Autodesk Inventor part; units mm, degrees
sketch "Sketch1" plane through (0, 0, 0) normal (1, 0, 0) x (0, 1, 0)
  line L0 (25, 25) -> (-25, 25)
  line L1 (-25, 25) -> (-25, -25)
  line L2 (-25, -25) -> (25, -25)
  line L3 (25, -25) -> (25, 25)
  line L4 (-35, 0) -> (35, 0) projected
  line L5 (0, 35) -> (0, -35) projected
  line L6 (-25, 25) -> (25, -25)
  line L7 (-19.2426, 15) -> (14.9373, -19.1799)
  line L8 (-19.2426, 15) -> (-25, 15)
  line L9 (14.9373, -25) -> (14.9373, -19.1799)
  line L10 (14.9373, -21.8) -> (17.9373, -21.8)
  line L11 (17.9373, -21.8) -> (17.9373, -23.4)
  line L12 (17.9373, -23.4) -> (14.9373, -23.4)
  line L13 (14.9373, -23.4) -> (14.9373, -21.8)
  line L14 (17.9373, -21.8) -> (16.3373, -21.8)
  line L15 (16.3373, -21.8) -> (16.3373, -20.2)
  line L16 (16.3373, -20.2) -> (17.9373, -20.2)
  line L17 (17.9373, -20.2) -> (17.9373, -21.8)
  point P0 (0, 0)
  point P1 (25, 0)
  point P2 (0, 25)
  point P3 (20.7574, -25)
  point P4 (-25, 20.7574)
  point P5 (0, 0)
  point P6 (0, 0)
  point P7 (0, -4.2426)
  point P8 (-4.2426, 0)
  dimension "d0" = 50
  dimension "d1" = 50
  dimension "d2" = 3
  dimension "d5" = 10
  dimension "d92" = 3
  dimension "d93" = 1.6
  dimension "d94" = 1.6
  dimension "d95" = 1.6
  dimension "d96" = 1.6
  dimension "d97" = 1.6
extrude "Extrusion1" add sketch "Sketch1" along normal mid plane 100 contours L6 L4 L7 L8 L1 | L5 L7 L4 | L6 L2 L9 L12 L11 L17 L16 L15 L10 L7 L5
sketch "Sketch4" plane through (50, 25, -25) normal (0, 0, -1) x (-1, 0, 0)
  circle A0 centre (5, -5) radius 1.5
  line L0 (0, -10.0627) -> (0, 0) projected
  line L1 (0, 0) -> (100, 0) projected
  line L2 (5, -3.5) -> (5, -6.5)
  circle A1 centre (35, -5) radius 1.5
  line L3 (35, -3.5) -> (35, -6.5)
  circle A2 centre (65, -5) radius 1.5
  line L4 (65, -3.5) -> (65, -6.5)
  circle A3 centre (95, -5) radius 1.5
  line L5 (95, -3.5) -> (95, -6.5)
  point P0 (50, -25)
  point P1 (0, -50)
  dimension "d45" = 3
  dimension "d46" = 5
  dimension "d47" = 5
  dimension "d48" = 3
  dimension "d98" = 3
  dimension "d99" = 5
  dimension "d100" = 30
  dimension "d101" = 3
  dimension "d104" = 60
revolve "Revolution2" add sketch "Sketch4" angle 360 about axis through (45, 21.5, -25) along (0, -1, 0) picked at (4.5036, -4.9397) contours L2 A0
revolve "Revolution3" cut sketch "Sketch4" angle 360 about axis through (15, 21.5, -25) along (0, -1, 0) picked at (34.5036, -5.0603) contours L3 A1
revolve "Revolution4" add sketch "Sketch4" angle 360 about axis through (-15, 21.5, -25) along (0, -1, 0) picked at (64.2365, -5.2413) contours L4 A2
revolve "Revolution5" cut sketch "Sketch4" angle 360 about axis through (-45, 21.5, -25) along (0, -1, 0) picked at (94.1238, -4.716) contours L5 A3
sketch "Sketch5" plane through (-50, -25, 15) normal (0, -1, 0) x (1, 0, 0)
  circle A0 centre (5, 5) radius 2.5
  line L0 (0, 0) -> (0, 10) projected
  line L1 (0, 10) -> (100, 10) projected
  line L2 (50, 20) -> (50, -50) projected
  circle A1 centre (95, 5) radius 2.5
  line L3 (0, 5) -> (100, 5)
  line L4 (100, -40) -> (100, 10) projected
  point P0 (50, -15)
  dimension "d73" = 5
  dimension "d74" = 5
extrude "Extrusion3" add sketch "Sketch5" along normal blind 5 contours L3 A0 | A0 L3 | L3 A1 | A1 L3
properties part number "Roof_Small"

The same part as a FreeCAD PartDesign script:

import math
import FreeCAD as App
import Part
import Sketcher

V = App.Vector
Q = App.Units.Quantity


def add_polygon(sketch, points):
    """Adds a closed chain of lines whose ends are joined by coincident constraints."""
    first, n = sketch.GeometryCount, len(points)
    for a, b in zip(points, points[1:] + points[:1]):
        sketch.addGeometry(Part.LineSegment(App.Vector(*a, 0), App.Vector(*b, 0)), False)
    for i in range(n):
        sketch.addConstraint(Sketcher.Constraint("Coincident", first + i, 2, first + (i + 1) % n, 1))

doc = App.newDocument("Part")
body = doc.addObject("PartDesign::Body", "Body")

# Sketch on YZ plane
sketch1 = body.newObject("Sketcher::SketchObject", "Sketch")
sketch1.AttachmentSupport = (doc.getObject("YZ_Plane"), [""])
sketch1.MapMode = "FlatFace"
add_polygon(sketch1, [(-25, 25), (-25, 15), (-19.2, 15), (14.9, -19.2), (14.9, -21.8), (16.3, -21.8), (16.3, -20.2), (17.9, -20.2), (17.9, -23.4), (14.9, -23.4), (14.9, -25), (25, -25)])  # lines 0-11
sketch1.addConstraint(Sketcher.Constraint("Vertical", 0))
sketch1.addConstraint(Sketcher.Constraint("Horizontal", 1))
sketch1.addConstraint(Sketcher.Constraint("Vertical", 3))
sketch1.addConstraint(Sketcher.Constraint("Horizontal", 4))
sketch1.addConstraint(Sketcher.Constraint("Vertical", 5))
sketch1.addConstraint(Sketcher.Constraint("Horizontal", 6))
sketch1.addConstraint(Sketcher.Constraint("Vertical", 7))
sketch1.addConstraint(Sketcher.Constraint("Horizontal", 8))
sketch1.addConstraint(Sketcher.Constraint("Vertical", 9))
sketch1.addConstraint(Sketcher.Constraint("Horizontal", 10))
sketch1.addConstraint(Sketcher.Constraint("Symmetric", 10, 2, 11, 2, -1, 1))
sketch1.addConstraint(Sketcher.Constraint("Parallel", 2, 11))
sketch1.addConstraint(Sketcher.Constraint("Vertical", 3, 2, 8, 2))
sketch1.addConstraint(Sketcher.Constraint("Equal", 6, 5))
sketch1.addConstraint(Sketcher.Constraint("Equal", 5, 9))
sketch1.addConstraint(Sketcher.Constraint("DistanceX", 8, 2, 8, 1, Q("3 mm")))
sketch1.addConstraint(Sketcher.Constraint("DistanceY", 0, 2, 0, 1, Q("10 mm")))
sketch1.addConstraint(Sketcher.Constraint("DistanceX", 6, 1, 6, 2, Q("1.6 mm")))
sketch1.addConstraint(Sketcher.Constraint("DistanceY", 7, 2, 4, 2, Q("1.6 mm")))
sketch1.addConstraint(Sketcher.Constraint("Angle", 2, Q("-45 deg")))
sketch1.addConstraint(Sketcher.Constraint("DistanceX", 0, 2, -1, 1, Q("25 mm")))
sketch1.addConstraint(Sketcher.Constraint("DistanceY", 3, 2, 3, 1, Q("2.62 mm")))
sketch1.addConstraint(Sketcher.Constraint("DistanceX", 1, 1, 1, 2, Q("5.7574 mm")))
pad1 = body.newObject("PartDesign::Pad", "Pad")
pad1.Profile = sketch1
pad1.Length = 100
pad1.Midplane = True

# Sketch on XY plane
sketch2 = body.newObject("Sketcher::SketchObject", "Sketch001")
sketch2.AttachmentSupport = (doc.getObject("XY_Plane"), [""])
sketch2.MapMode = "FlatFace"
sketch2.AttachmentOffset = App.Placement(V(0, 0, -25), App.Rotation())
sketch2.addGeometry(Part.LineSegment(V(45, 18.5, 0), V(45, 21.5, 0)), False)
sketch2.addGeometry(Part.ArcOfCircle(Part.Circle(V(45, 20, 0), V(0, 0, 1), 1.5), math.radians(-90), math.radians(90)), False)
sketch2.addGeometry(Part.LineSegment(V(45, 21.5, 0), V(45, 18.5, 0)), True)  # axis
sketch2.addConstraint(Sketcher.Constraint("Coincident", 0, 1, 1, 1))
sketch2.addConstraint(Sketcher.Constraint("Coincident", 1, 2, 0, 2))
sketch2.addConstraint(Sketcher.Constraint("Vertical", 0))
sketch2.addConstraint(Sketcher.Constraint("Vertical", 2))
sketch2.addConstraint(Sketcher.Constraint("Coincident", 2, 1, 1, 2))
sketch2.addConstraint(Sketcher.Constraint("Vertical", 1, 3, 0, 1))
sketch2.addConstraint(Sketcher.Constraint("Equal", 0, 2))
sketch2.addConstraint(Sketcher.Constraint("Radius", 1, Q("1.5 mm")))
sketch2.addConstraint(Sketcher.Constraint("DistanceX", -1, 1, 1, 3, Q("45 mm")))
sketch2.addConstraint(Sketcher.Constraint("DistanceY", -1, 1, 1, 3, Q("20 mm")))
revolution = body.newObject("PartDesign::Revolution", "Revolution")
revolution.Profile = sketch2
revolution.ReferenceAxis = (sketch2, ["Axis0"])
revolution.Angle = 360

# Sketch on XY plane
sketch3 = body.newObject("Sketcher::SketchObject", "Sketch002")
sketch3.AttachmentSupport = (doc.getObject("XY_Plane"), [""])
sketch3.MapMode = "FlatFace"
sketch3.AttachmentOffset = App.Placement(V(0, 0, -25), App.Rotation())
sketch3.addGeometry(Part.LineSegment(V(15, 18.5, 0), V(15, 21.5, 0)), False)
sketch3.addGeometry(Part.ArcOfCircle(Part.Circle(V(15, 20, 0), V(0, 0, 1), 1.5), math.radians(-90), math.radians(90)), False)
sketch3.addGeometry(Part.LineSegment(V(15, 21.5, 0), V(15, 18.5, 0)), True)  # axis
sketch3.addConstraint(Sketcher.Constraint("Coincident", 0, 1, 1, 1))
sketch3.addConstraint(Sketcher.Constraint("Coincident", 1, 2, 0, 2))
sketch3.addConstraint(Sketcher.Constraint("Vertical", 0))
sketch3.addConstraint(Sketcher.Constraint("Vertical", 2))
sketch3.addConstraint(Sketcher.Constraint("Coincident", 2, 1, 1, 2))
sketch3.addConstraint(Sketcher.Constraint("Vertical", 1, 3, 0, 1))
sketch3.addConstraint(Sketcher.Constraint("Equal", 0, 2))
sketch3.addConstraint(Sketcher.Constraint("Radius", 1, Q("1.5 mm")))
sketch3.addConstraint(Sketcher.Constraint("DistanceX", -1, 1, 1, 3, Q("15 mm")))
sketch3.addConstraint(Sketcher.Constraint("DistanceY", -1, 1, 1, 3, Q("20 mm")))
groove = body.newObject("PartDesign::Groove", "Groove")
groove.Profile = sketch3
groove.ReferenceAxis = (sketch3, ["Axis0"])
groove.Angle = 360

# Sketch on XY plane
sketch4 = body.newObject("Sketcher::SketchObject", "Sketch003")
sketch4.AttachmentSupport = (doc.getObject("XY_Plane"), [""])
sketch4.MapMode = "FlatFace"
sketch4.AttachmentOffset = App.Placement(V(0, 0, -25), App.Rotation())
sketch4.addGeometry(Part.LineSegment(V(-15, 18.5, 0), V(-15, 21.5, 0)), False)
sketch4.addGeometry(Part.ArcOfCircle(Part.Circle(V(-15, 20, 0), V(0, 0, 1), 1.5), math.radians(-90), math.radians(90)), False)
sketch4.addGeometry(Part.LineSegment(V(-15, 21.5, 0), V(-15, 18.5, 0)), True)  # axis
sketch4.addConstraint(Sketcher.Constraint("Coincident", 0, 1, 1, 1))
sketch4.addConstraint(Sketcher.Constraint("Coincident", 1, 2, 0, 2))
sketch4.addConstraint(Sketcher.Constraint("Vertical", 0))
sketch4.addConstraint(Sketcher.Constraint("Vertical", 2))
sketch4.addConstraint(Sketcher.Constraint("Coincident", 2, 1, 1, 2))
sketch4.addConstraint(Sketcher.Constraint("Vertical", 1, 3, 0, 1))
sketch4.addConstraint(Sketcher.Constraint("Equal", 0, 2))
sketch4.addConstraint(Sketcher.Constraint("Radius", 1, Q("1.5 mm")))
sketch4.addConstraint(Sketcher.Constraint("DistanceX", 1, 3, -1, 1, Q("15 mm")))
sketch4.addConstraint(Sketcher.Constraint("DistanceY", -1, 1, 1, 3, Q("20 mm")))
revolution2 = body.newObject("PartDesign::Revolution", "Revolution001")
revolution2.Profile = sketch4
revolution2.ReferenceAxis = (sketch4, ["Axis0"])
revolution2.Angle = 360

# Sketch on XY plane
sketch5 = body.newObject("Sketcher::SketchObject", "Sketch004")
sketch5.AttachmentSupport = (doc.getObject("XY_Plane"), [""])
sketch5.MapMode = "FlatFace"
sketch5.AttachmentOffset = App.Placement(V(0, 0, -25), App.Rotation())
sketch5.addGeometry(Part.LineSegment(V(-45, 18.5, 0), V(-45, 21.5, 0)), False)
sketch5.addGeometry(Part.ArcOfCircle(Part.Circle(V(-45, 20, 0), V(0, 0, 1), 1.5), math.radians(-90), math.radians(90)), False)
sketch5.addGeometry(Part.LineSegment(V(-45, 21.5, 0), V(-45, 18.5, 0)), True)  # axis
sketch5.addConstraint(Sketcher.Constraint("Coincident", 0, 1, 1, 1))
sketch5.addConstraint(Sketcher.Constraint("Coincident", 1, 2, 0, 2))
sketch5.addConstraint(Sketcher.Constraint("Vertical", 0))
sketch5.addConstraint(Sketcher.Constraint("Vertical", 2))
sketch5.addConstraint(Sketcher.Constraint("Coincident", 2, 1, 1, 2))
sketch5.addConstraint(Sketcher.Constraint("Vertical", 1, 3, 0, 1))
sketch5.addConstraint(Sketcher.Constraint("Equal", 0, 2))
sketch5.addConstraint(Sketcher.Constraint("Radius", 1, Q("1.5 mm")))
sketch5.addConstraint(Sketcher.Constraint("DistanceX", 1, 3, -1, 1, Q("45 mm")))
sketch5.addConstraint(Sketcher.Constraint("DistanceY", -1, 1, 1, 3, Q("20 mm")))
groove2 = body.newObject("PartDesign::Groove", "Groove001")
groove2.Profile = sketch5
groove2.ReferenceAxis = (sketch5, ["Axis0"])
groove2.Angle = 360

# Sketch on XZ plane
sketch6 = body.newObject("Sketcher::SketchObject", "Sketch005")
sketch6.AttachmentSupport = (doc.getObject("XZ_Plane"), [""])
sketch6.MapMode = "FlatFace"
sketch6.AttachmentOffset = App.Placement(V(0, 0, 25), App.Rotation())
sketch6.addGeometry(Part.Circle(V(-45, 20, 0), V(0, 0, 1), 2.5), False)
sketch6.addGeometry(Part.Circle(V(45, 20, 0), V(0, 0, 1), 2.5), False)
sketch6.addConstraint(Sketcher.Constraint("Equal", 0, 1))
sketch6.addConstraint(Sketcher.Constraint("Symmetric", 0, 3, 1, 3, -2))
sketch6.addConstraint(Sketcher.Constraint("Diameter", 0, Q("5 mm")))
sketch6.addConstraint(Sketcher.Constraint("DistanceX", 0, 3, -1, 1, Q("45 mm")))
sketch6.addConstraint(Sketcher.Constraint("DistanceY", -1, 1, 0, 3, Q("20 mm")))
pad2 = body.newObject("PartDesign::Pad", "Pad001")
pad2.Profile = sketch6
pad2.Length = 5

doc.recompute()
